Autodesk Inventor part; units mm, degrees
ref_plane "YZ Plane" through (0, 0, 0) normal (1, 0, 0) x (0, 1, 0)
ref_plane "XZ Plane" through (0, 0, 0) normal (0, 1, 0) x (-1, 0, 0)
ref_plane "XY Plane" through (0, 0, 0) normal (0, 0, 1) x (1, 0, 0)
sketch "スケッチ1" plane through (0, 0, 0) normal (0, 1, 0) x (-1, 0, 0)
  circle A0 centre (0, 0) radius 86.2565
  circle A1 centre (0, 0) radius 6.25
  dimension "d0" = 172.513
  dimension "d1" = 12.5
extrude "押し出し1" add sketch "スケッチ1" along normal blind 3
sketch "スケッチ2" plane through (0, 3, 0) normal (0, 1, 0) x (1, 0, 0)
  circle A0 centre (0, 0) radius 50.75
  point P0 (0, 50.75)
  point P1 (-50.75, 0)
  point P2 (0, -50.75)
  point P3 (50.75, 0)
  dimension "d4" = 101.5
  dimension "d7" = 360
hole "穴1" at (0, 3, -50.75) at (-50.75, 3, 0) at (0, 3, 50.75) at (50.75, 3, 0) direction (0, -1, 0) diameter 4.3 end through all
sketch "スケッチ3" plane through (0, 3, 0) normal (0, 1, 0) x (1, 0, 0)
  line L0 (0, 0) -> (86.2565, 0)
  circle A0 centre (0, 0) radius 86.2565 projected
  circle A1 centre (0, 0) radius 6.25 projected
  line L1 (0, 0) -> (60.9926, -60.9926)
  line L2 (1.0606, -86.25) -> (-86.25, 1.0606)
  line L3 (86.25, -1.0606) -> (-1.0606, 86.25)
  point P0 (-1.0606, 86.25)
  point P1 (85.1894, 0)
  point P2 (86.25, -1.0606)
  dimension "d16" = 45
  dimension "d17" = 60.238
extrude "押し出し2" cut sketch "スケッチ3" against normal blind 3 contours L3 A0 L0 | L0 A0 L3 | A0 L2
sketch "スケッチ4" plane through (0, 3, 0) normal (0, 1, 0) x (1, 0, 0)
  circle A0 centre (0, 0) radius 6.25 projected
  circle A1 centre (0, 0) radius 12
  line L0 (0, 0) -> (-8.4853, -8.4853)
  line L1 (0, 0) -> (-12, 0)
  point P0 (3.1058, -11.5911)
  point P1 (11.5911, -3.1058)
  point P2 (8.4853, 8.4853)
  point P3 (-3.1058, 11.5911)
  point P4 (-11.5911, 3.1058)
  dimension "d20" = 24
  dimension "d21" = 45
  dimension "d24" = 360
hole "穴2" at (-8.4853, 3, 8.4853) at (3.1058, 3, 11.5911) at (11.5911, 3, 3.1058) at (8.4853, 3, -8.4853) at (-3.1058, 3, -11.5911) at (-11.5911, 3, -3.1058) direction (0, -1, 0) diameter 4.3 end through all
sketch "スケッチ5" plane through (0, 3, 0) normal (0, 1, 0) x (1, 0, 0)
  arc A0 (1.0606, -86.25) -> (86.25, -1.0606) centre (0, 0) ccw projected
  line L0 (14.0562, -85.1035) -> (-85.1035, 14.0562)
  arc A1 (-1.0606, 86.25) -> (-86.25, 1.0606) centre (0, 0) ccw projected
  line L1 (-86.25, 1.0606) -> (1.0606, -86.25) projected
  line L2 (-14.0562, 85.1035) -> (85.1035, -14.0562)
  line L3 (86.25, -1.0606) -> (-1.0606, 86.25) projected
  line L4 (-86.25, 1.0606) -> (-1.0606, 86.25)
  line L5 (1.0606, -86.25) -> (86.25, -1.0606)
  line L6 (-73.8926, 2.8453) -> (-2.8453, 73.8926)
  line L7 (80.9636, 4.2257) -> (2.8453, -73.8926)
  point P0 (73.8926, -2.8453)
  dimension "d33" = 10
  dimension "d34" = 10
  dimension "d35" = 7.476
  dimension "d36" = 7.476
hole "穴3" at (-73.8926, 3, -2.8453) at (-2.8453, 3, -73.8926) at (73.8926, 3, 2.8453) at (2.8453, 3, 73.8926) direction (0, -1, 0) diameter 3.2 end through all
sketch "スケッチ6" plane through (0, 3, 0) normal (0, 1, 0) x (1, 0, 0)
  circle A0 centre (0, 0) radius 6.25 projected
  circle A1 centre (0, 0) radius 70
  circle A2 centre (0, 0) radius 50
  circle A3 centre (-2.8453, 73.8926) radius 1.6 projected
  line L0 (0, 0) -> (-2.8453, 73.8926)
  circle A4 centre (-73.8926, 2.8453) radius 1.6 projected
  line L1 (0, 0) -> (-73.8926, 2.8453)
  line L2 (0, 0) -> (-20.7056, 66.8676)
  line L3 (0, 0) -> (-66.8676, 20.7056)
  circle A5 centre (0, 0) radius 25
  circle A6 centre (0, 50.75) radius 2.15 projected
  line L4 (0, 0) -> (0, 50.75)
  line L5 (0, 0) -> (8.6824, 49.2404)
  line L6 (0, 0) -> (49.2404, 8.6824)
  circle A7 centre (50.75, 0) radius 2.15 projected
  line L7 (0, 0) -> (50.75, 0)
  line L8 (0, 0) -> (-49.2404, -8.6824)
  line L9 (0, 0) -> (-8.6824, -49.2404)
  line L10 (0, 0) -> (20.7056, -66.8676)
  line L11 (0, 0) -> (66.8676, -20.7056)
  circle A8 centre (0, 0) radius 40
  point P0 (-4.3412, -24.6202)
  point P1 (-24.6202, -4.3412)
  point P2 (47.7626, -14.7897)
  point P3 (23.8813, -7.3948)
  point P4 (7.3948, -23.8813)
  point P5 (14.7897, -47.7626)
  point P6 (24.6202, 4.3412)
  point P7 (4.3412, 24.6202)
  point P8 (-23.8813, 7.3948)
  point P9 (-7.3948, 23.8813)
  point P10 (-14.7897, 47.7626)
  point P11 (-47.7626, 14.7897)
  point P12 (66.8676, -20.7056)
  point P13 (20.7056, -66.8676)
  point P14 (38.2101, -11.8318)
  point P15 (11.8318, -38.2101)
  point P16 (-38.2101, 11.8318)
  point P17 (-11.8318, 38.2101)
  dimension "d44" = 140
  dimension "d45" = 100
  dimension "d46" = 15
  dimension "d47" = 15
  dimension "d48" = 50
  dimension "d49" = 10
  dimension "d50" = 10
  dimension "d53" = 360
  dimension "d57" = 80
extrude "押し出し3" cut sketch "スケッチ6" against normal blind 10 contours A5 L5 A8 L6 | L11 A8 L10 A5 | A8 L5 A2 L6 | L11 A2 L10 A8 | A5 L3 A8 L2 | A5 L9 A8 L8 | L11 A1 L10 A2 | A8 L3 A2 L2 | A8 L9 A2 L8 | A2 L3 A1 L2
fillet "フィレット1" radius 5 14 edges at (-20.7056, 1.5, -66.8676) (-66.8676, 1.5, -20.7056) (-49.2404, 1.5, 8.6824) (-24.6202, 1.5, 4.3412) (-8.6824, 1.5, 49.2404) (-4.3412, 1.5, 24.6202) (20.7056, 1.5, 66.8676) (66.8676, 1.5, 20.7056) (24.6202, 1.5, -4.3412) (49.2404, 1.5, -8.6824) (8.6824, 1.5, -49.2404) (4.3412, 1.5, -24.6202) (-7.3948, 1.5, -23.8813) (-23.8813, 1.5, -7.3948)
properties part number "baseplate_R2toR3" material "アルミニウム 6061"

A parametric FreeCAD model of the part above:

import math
import FreeCAD as App
import Part
import Sketcher
Q = App.Units.Quantity


def edges_at(feature, points):
    """Names of the edges that pass closest to the given points."""
    edges = feature.Shape.Edges
    near = lambda p: min(range(len(edges)), key=lambda i: edges[i].distToShape(Part.Vertex(*p))[0])
    return sorted({f"Edge{near(p) + 1}" for p in points})

doc = App.newDocument("Part")
params = doc.addObject("Spreadsheet::Sheet", "Params")
for row, (alias, value) in enumerate([
    ("sketch1_diameter", "12.5 mm"),
    ("pad1_length", "3 mm"),
    ("sketch2_diameter", "4.3 mm"),
    ("hole_diameter", "4.3 mm"),
    ("pocket1_length", "3 mm"),
    ("sketch4_diameter", "4.3 mm"),
    ("hole2_diameter", "4.3 mm"),
    ("sketch5_diameter", "3.2 mm"),
    ("hole3_diameter", "3.2 mm"),
    ("sketch6_radius", "25 mm"),
    ("sketch6_radius2", "50 mm"),
    ("sketch6_radius3", "70 mm"),
    ("pocket2_length", "10 mm"),
    ("fillet_radius", "5 mm"),
], start=1):
    params.set(f"A{row}", alias)
    params.set(f"B{row}", "=" + value)
    params.setAlias(f"B{row}", alias)

body = doc.addObject("PartDesign::Body", "Body")

sketch1 = body.newObject("Sketcher::SketchObject", "Sketch")
sketch1.AttachmentSupport = (doc.getObject("XZ_Plane"), [""])
sketch1.MapMode = "FlatFace"
sketch1.addGeometry([
    Part.Circle(App.Vector(0, 0, 0), App.Vector(0, 0, 1), 86),
    Part.Circle(App.Vector(0, 0, 0), App.Vector(0, 0, 1), 6),
], False)
sketch1.addConstraint([
    Sketcher.Constraint("Coincident", 0, 3, -1, 1),
    Sketcher.Constraint("Coincident", 1, 3, -1, 1),
    Sketcher.Constraint("Diameter", 1, Q("12.5 mm")),
    Sketcher.Constraint("Diameter", 0, Q("172.513 mm")),
])
sketch1.setExpression("Constraints[2]", "Params.sketch1_diameter")
pad1 = body.newObject("PartDesign::Pad", "Pad")
pad1.Profile = sketch1
pad1.setExpression("Length", "Params.pad1_length")
pad1.Reversed = True

sketch2 = body.newObject("Sketcher::SketchObject", "Sketch001")
sketch2.AttachmentSupport = (doc.getObject("XZ_Plane"), [""])
sketch2.MapMode = "FlatFace"
sketch2.AttachmentOffset = App.Placement(App.Vector(0, 0, -3), App.Rotation())
sketch2.addGeometry([
    Part.Circle(App.Vector(0, -50.8, 0), App.Vector(0, 0, 1), 2.1),
    Part.Circle(App.Vector(-50.8, 0, 0), App.Vector(0, 0, 1), 2.1),
    Part.Circle(App.Vector(0, 50.8, 0), App.Vector(0, 0, 1), 2.1),
    Part.Circle(App.Vector(50.8, 0, 0), App.Vector(0, 0, 1), 2.1),
], False)
sketch2.addConstraint([
    Sketcher.Constraint("Equal", 0, 1),
    Sketcher.Constraint("Equal", 1, 2),
    Sketcher.Constraint("Equal", 2, 3),
    Sketcher.Constraint("Symmetric", 0, 3, 2, 3, -1, 1),
    Sketcher.Constraint("Symmetric", 1, 3, 3, 3, -1, 1),
    Sketcher.Constraint("PointOnObject", 0, 3, -2),
    Sketcher.Constraint("PointOnObject", 1, 3, -1),
    Sketcher.Constraint("Diameter", 0, Q("4.3 mm")),
    Sketcher.Constraint("DistanceY", 0, 3, 2, 3, Q("101.5 mm")),
    Sketcher.Constraint("DistanceX", 1, 3, 3, 3, Q("101.5 mm")),
])
sketch2.setExpression("Constraints[7]", "Params.sketch2_diameter")
doc.recompute()
hole = body.newObject("PartDesign::Hole", "Hole")
hole.Profile = sketch2
hole.ThreadType = "None"
hole.setExpression("Diameter", "Params.hole_diameter")
hole.DepthType = "ThroughAll"
hole.Reversed = True

sketch3 = body.newObject("Sketcher::SketchObject", "Sketch002")
sketch3.AttachmentSupport = (doc.getObject("XZ_Plane"), [""])
sketch3.MapMode = "FlatFace"
sketch3.AttachmentOffset = App.Placement(App.Vector(0, 0, -3), App.Rotation())
sketch3.addGeometry([
    Part.LineSegment(App.Vector(-1, -86, 0), App.Vector(86, 1, 0)),
    Part.ArcOfCircle(Part.Circle(App.Vector(0, 0, 0), App.Vector(0, 0, 1), 86), math.radians(-91), math.radians(1)),
    Part.ArcOfCircle(Part.Circle(App.Vector(0, 0, 0), App.Vector(0, 0, 1), 86), math.radians(89), math.radians(181)),
    Part.LineSegment(App.Vector(-86, -1, 0), App.Vector(1, 86, 0)),
], False)
sketch3.addConstraint([
    Sketcher.Constraint("Coincident", 0, 1, 1, 1),
    Sketcher.Constraint("Coincident", 1, 2, 0, 2),
    Sketcher.Constraint("Coincident", 2, 1, 3, 2),
    Sketcher.Constraint("Coincident", 3, 1, 2, 2),
    Sketcher.Constraint("Coincident", 1, 3, -1, 1),
    Sketcher.Constraint("Coincident", 2, 3, -1, 1),
    Sketcher.Constraint("Equal", 1, 2),
    Sketcher.Constraint("Parallel", 0, 3),
    Sketcher.Constraint("Equal", 0, 3),
    Sketcher.Constraint("Angle", 0, Q("45 deg")),
    Sketcher.Constraint("Radius", 1, Q("86.2565 mm")),
    Sketcher.Constraint("DistanceY", 0, 1, 2, 1, Q("172.5 mm")),
])
pocket1 = body.newObject("PartDesign::Pocket", "Pocket")
pocket1.Profile = sketch3
pocket1.setExpression("Length", "Params.pocket1_length")
pocket1.Reversed = True

sketch4 = body.newObject("Sketcher::SketchObject", "Sketch003")
sketch4.AttachmentSupport = (doc.getObject("XZ_Plane"), [""])
sketch4.MapMode = "FlatFace"
sketch4.AttachmentOffset = App.Placement(App.Vector(0, 0, -3), App.Rotation())
sketch4.addGeometry([
    Part.Circle(App.Vector(-8.5, 8.5, 0), App.Vector(0, 0, 1), 2.1),
    Part.Circle(App.Vector(3.1, 11.6, 0), App.Vector(0, 0, 1), 2.1),
    Part.Circle(App.Vector(11.6, 3.1, 0), App.Vector(0, 0, 1), 2.1),
    Part.Circle(App.Vector(8.5, -8.5, 0), App.Vector(0, 0, 1), 2.1),
    Part.Circle(App.Vector(-3.1, -11.6, 0), App.Vector(0, 0, 1), 2.1),
    Part.Circle(App.Vector(-11.6, -3.1, 0), App.Vector(0, 0, 1), 2.1),
], False)
sketch4.addConstraint([
    Sketcher.Constraint("Equal", 0, 1),
    Sketcher.Constraint("Equal", 1, 2),
    Sketcher.Constraint("Equal", 2, 3),
    Sketcher.Constraint("Equal", 3, 4),
    Sketcher.Constraint("Equal", 4, 5),
    Sketcher.Constraint("Symmetric", 0, 3, 3, 3, -1, 1),
    Sketcher.Constraint("Symmetric", 1, 3, 4, 3, -1, 1),
    Sketcher.Constraint("Symmetric", 2, 3, 5, 3, -1, 1),
    Sketcher.Constraint("Diameter", 0, Q("4.3 mm")),
    Sketcher.Constraint("DistanceY", -1, 1, 1, 3, Q("11.591 mm")),
    Sketcher.Constraint("DistanceX", -1, 1, 2, 3, Q("11.591 mm")),
    Sketcher.Constraint("DistanceX", 0, 3, 1, 3, Q("11.591 mm")),
    Sketcher.Constraint("DistanceY", 3, 3, 2, 3, Q("11.591 mm")),
    Sketcher.Constraint("DistanceX", 4, 3, 2, 3, Q("14.697 mm")),
    Sketcher.Constraint("DistanceY", 4, 3, 2, 3, Q("14.697 mm")),
])
sketch4.setExpression("Constraints[8]", "Params.sketch4_diameter")
doc.recompute()
hole2 = body.newObject("PartDesign::Hole", "Hole001")
hole2.Profile = sketch4
hole2.ThreadType = "None"
hole2.setExpression("Diameter", "Params.hole2_diameter")
hole2.DepthType = "ThroughAll"
hole2.Reversed = True

sketch5 = body.newObject("Sketcher::SketchObject", "Sketch004")
sketch5.AttachmentSupport = (doc.getObject("XZ_Plane"), [""])
sketch5.MapMode = "FlatFace"
sketch5.AttachmentOffset = App.Placement(App.Vector(0, 0, -3), App.Rotation())
sketch5.addGeometry([
    Part.Circle(App.Vector(-73.9, -2.8, 0), App.Vector(0, 0, 1), 1.6),
    Part.Circle(App.Vector(-2.8, -73.9, 0), App.Vector(0, 0, 1), 1.6),
    Part.Circle(App.Vector(73.9, 2.8, 0), App.Vector(0, 0, 1), 1.6),
    Part.Circle(App.Vector(2.8, 73.9, 0), App.Vector(0, 0, 1), 1.6),
], False)
sketch5.addConstraint([
    Sketcher.Constraint("Equal", 0, 1),
    Sketcher.Constraint("Equal", 1, 2),
    Sketcher.Constraint("Equal", 2, 3),
    Sketcher.Constraint("Symmetric", 0, 3, 2, 3, -1, 1),
    Sketcher.Constraint("Symmetric", 1, 3, 3, 3, -1, 1),
    Sketcher.Constraint("Diameter", 0, Q("3.2 mm")),
    Sketcher.Constraint("DistanceX", 1, 3, 2, 3, Q("76.738 mm")),
    Sketcher.Constraint("DistanceY", 1, 3, 2, 3, Q("76.738 mm")),
    Sketcher.Constraint("DistanceX", 0, 3, -1, 1, Q("73.8926 mm")),
    Sketcher.Constraint("DistanceY", 0, 3, -1, 1, Q("2.8453 mm")),
])
sketch5.setExpression("Constraints[5]", "Params.sketch5_diameter")
doc.recompute()
hole3 = body.newObject("PartDesign::Hole", "Hole002")
hole3.Profile = sketch5
hole3.ThreadType = "None"
hole3.setExpression("Diameter", "Params.hole3_diameter")
hole3.DepthType = "ThroughAll"
hole3.Reversed = True

sketch6 = body.newObject("Sketcher::SketchObject", "Sketch005")
sketch6.AttachmentSupport = (doc.getObject("XZ_Plane"), [""])
sketch6.MapMode = "FlatFace"
sketch6.AttachmentOffset = App.Placement(App.Vector(0, 0, -3), App.Rotation())
sketch6.addGeometry([
    Part.ArcOfCircle(Part.Circle(App.Vector(0, 0, 0), App.Vector(0, 0, 1), 25), math.radians(-80), math.radians(-10)),
    Part.LineSegment(App.Vector(25, -4, 0), App.Vector(49, -9, 0)),
    Part.ArcOfCircle(Part.Circle(App.Vector(0, 0, 0), App.Vector(0, 0, 1), 50), math.radians(-80), math.radians(-10)),
    Part.LineSegment(App.Vector(9, -49, 0), App.Vector(4, -25, 0)),
    Part.ArcOfCircle(Part.Circle(App.Vector(0, 0, 0), App.Vector(0, 0, 1), 25), math.radians(17), math.radians(73)),
    Part.LineSegment(App.Vector(7, 24, 0), App.Vector(21, 67, 0)),
    Part.ArcOfCircle(Part.Circle(App.Vector(0, 0, 0), App.Vector(0, 0, 1), 70), math.radians(17), math.radians(73)),
    Part.LineSegment(App.Vector(67, 21, 0), App.Vector(24, 7, 0)),
    Part.ArcOfCircle(Part.Circle(App.Vector(0, 0, 0), App.Vector(0, 0, 1), 25), math.radians(-163), math.radians(-107)),
    Part.LineSegment(App.Vector(-7, -24, 0), App.Vector(-21, -67, 0)),
    Part.ArcOfCircle(Part.Circle(App.Vector(0, 0, 0), App.Vector(0, 0, 1), 70), math.radians(-163), math.radians(-107)),
    Part.LineSegment(App.Vector(-67, -21, 0), App.Vector(-24, -7, 0)),
    Part.ArcOfCircle(Part.Circle(App.Vector(0, 0, 0), App.Vector(0, 0, 1), 25), math.radians(100), math.radians(170)),
    Part.LineSegment(App.Vector(-25, 4, 0), App.Vector(-49, 9, 0)),
    Part.ArcOfCircle(Part.Circle(App.Vector(0, 0, 0), App.Vector(0, 0, 1), 50), math.radians(100), math.radians(170)),
    Part.LineSegment(App.Vector(-9, 49, 0), App.Vector(-4, 25, 0)),
], False)
sketch6.addConstraint([
    Sketcher.Constraint("Coincident", 0, 2, 1, 1),
    Sketcher.Constraint("Coincident", 1, 2, 2, 2),
    Sketcher.Constraint("Coincident", 2, 1, 3, 1),
    Sketcher.Constraint("Coincident", 3, 2, 0, 1),
    Sketcher.Constraint("Coincident", 4, 2, 5, 1),
    Sketcher.Constraint("Coincident", 5, 2, 6, 2),
    Sketcher.Constraint("Coincident", 6, 1, 7, 1),
    Sketcher.Constraint("Coincident", 7, 2, 4, 1),
    Sketcher.Constraint("Coincident", 8, 2, 9, 1),
    Sketcher.Constraint("Coincident", 9, 2, 10, 2),
    Sketcher.Constraint("Coincident", 10, 1, 11, 1),
    Sketcher.Constraint("Coincident", 11, 2, 8, 1),
    Sketcher.Constraint("Coincident", 12, 2, 13, 1),
    Sketcher.Constraint("Coincident", 13, 2, 14, 2),
    Sketcher.Constraint("Coincident", 14, 1, 15, 1),
    Sketcher.Constraint("Coincident", 15, 2, 12, 1),
    Sketcher.Constraint("Coincident", 0, 3, -1, 1),
    Sketcher.Constraint("Coincident", 2, 3, -1, 1),
    Sketcher.Constraint("Coincident", 4, 3, -1, 1),
    Sketcher.Constraint("Coincident", 6, 3, -1, 1),
    Sketcher.Constraint("Coincident", 8, 3, -1, 1),
    Sketcher.Constraint("Coincident", 10, 3, -1, 1),
    Sketcher.Constraint("Coincident", 12, 3, -1, 1),
    Sketcher.Constraint("Coincident", 14, 3, -1, 1),
    Sketcher.Constraint("Equal", 0, 4),
    Sketcher.Constraint("Equal", 4, 8),
    Sketcher.Constraint("Equal", 6, 10),
    Sketcher.Constraint("Equal", 8, 12),
    Sketcher.Constraint("Equal", 2, 14),
    Sketcher.Constraint("Parallel", 5, 9),
    Sketcher.Constraint("Parallel", 7, 11),
    Sketcher.Constraint("Parallel", 1, 13),
    Sketcher.Constraint("Parallel", 3, 15),
    Sketcher.Constraint("Radius", 0, Q("25 mm")),
    Sketcher.Constraint("Radius", 2, Q("50 mm")),
    Sketcher.Constraint("Radius", 6, Q("70 mm")),
    Sketcher.Constraint("Angle", 1, Q("-10 deg")),
    Sketcher.Constraint("Angle", 3, Q("100 deg")),
    Sketcher.Constraint("DistanceY", 1, 2, 6, 1, Q("29.388 mm")),
    Sketcher.Constraint("DistanceX", 5, 2, 6, 1, Q("46.162 mm")),
    Sketcher.Constraint("DistanceY", 6, 1, 5, 2, Q("46.162 mm")),
    Sketcher.Constraint("DistanceX", 7, 2, 0, 2, Q("0.739 mm")),
    Sketcher.Constraint("DistanceX", 8, 2, 3, 2, Q("11.736 mm")),
    Sketcher.Constraint("DistanceY", 3, 2, 8, 2, Q("0.739 mm")),
    Sketcher.Constraint("DistanceX", 9, 2, 2, 1, Q("29.388 mm")),
    Sketcher.Constraint("DistanceX", 10, 1, 9, 2, Q("46.162 mm")),
    Sketcher.Constraint("DistanceX", 12, 2, 11, 2, Q("0.739 mm")),
    Sketcher.Constraint("DistanceY", 4, 2, 14, 1, Q("25.359 mm")),
])
sketch6.setExpression("Constraints[33]", "Params.sketch6_radius")
sketch6.setExpression("Constraints[34]", "Params.sketch6_radius2")
sketch6.setExpression("Constraints[35]", "Params.sketch6_radius3")
pocket2 = body.newObject("PartDesign::Pocket", "Pocket001")
pocket2.Profile = sketch6
pocket2.setExpression("Length", "Params.pocket2_length")
pocket2.Reversed = True
doc.recompute()

fillet = body.newObject("PartDesign::Fillet", "Fillet")
fillet.Base = (pocket2, edges_at(pocket2, [
    (-20.706, 1.5, -66.868),
    (-66.868, 1.5, -20.706),
    (-49.24, 1.5, 8.682),
    (-24.62, 1.5, 4.341),
    (-8.682, 1.5, 49.24),
    (-4.341, 1.5, 24.62),
    (20.706, 1.5, 66.868),
    (66.868, 1.5, 20.706),
    (24.62, 1.5, -4.341),
    (49.24, 1.5, -8.682),
    (8.682, 1.5, -49.24),
    (4.341, 1.5, -24.62),
    (-7.395, 1.5, -23.881),
    (-23.881, 1.5, -7.395),
]))
fillet.setExpression("Radius", "Params.fillet_radius")

doc.recompute()
